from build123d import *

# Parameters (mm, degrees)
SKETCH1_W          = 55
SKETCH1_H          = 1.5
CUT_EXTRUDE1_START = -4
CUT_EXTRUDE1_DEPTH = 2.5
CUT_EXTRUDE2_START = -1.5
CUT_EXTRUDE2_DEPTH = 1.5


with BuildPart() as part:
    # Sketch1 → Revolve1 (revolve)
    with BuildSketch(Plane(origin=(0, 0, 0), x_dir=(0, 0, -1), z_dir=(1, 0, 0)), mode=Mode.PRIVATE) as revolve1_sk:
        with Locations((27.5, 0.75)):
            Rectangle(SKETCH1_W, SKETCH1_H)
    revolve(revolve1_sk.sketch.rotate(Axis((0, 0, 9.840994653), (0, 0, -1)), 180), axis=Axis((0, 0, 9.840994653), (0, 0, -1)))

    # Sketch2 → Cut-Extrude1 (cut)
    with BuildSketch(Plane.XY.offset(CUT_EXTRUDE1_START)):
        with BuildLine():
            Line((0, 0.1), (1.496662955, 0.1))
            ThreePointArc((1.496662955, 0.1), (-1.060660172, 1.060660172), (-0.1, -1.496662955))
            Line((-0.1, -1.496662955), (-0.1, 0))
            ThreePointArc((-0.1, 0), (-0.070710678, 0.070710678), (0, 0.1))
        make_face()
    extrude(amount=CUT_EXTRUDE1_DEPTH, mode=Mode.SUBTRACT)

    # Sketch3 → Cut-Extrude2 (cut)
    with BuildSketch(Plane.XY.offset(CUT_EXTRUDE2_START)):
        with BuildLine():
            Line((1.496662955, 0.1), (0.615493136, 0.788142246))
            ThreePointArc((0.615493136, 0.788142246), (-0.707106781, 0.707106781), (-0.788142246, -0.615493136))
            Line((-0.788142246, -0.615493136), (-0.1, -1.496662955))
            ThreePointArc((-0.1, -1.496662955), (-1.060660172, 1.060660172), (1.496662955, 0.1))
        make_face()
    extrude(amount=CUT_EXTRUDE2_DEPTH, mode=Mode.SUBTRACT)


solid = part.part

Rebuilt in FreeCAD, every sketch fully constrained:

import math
import FreeCAD as App
import Part
import Sketcher

V = App.Vector

doc = App.newDocument("Part")
body = doc.addObject("PartDesign::Body", "Body")

sketch1 = body.newObject("Sketcher::SketchObject", "Sketch")
sketch1.AttachmentSupport = (doc.getObject("YZ_Plane"), [""])
sketch1.MapMode = "FlatFace"
sketch1.addGeometry(Part.LineSegment(V(1.5, 0, 0), V(0, 0, 0)), False)
sketch1.addGeometry(Part.LineSegment(V(0, 0, 0), V(0, -55, 0)), False)
sketch1.addGeometry(Part.LineSegment(V(0, -55, 0), V(1.5, -55, 0)), False)
sketch1.addGeometry(Part.LineSegment(V(1.5, -55, 0), V(1.5, 0, 0)), False)
sketch1.addConstraint(Sketcher.Constraint("Coincident", 0, 2, 1, 1))
sketch1.addConstraint(Sketcher.Constraint("Coincident", 1, 2, 2, 1))
sketch1.addConstraint(Sketcher.Constraint("Coincident", 2, 2, 3, 1))
sketch1.addConstraint(Sketcher.Constraint("Coincident", 3, 2, 0, 1))
sketch1.addConstraint(Sketcher.Constraint("Horizontal", 0))
sketch1.addConstraint(Sketcher.Constraint("Vertical", 1))
sketch1.addConstraint(Sketcher.Constraint("Horizontal", 2))
sketch1.addConstraint(Sketcher.Constraint("Vertical", 3))
sketch1.addConstraint(Sketcher.Constraint("Coincident", 0, 2, -1, 1))
sketch1.addConstraint(Sketcher.Constraint("DistanceY", 1, 2, 1, 1, 55.0))
sketch1.addConstraint(Sketcher.Constraint("DistanceX", 0, 2, 0, 1, 1.5))
revolution = body.newObject("PartDesign::Revolution", "Revolution")
revolution.Profile = sketch1
revolution.ReferenceAxis = (sketch1, ["V_Axis"])
revolution.Angle = 360

sketch2 = body.newObject("Sketcher::SketchObject", "Sketch001")
sketch2.AttachmentSupport = (doc.getObject("XY_Plane"), [""])
sketch2.MapMode = "FlatFace"
sketch2.AttachmentOffset = App.Placement(V(0, 0, -4), App.Rotation())
sketch2.addGeometry(Part.LineSegment(V(0, 0.1, 0), V(1.496663, 0.1, 0)), False)
sketch2.addGeometry(Part.ArcOfCircle(Part.Circle(V(0, 0, 0), V(0, 0, 1), 1.5), math.radians(3.822554), math.radians(266.177446)), False)
sketch2.addGeometry(Part.LineSegment(V(-0.1, -1.496663, 0), V(-0.1, 0, 0)), False)
sketch2.addGeometry(Part.ArcOfCircle(Part.Circle(V(0, 0, 0), V(0, 0, 1), 0.1), math.radians(90), math.radians(180)), False)
sketch2.addConstraint(Sketcher.Constraint("Coincident", 0, 2, 1, 1))
sketch2.addConstraint(Sketcher.Constraint("Coincident", 1, 2, 2, 1))
sketch2.addConstraint(Sketcher.Constraint("Tangent", 2, 2, 3, 2))
sketch2.addConstraint(Sketcher.Constraint("Tangent", 3, 1, 0, 1))
sketch2.addConstraint(Sketcher.Constraint("Horizontal", 0))
sketch2.addConstraint(Sketcher.Constraint("Vertical", 2))
sketch2.addConstraint(Sketcher.Constraint("Coincident", 1, 3, -1, 1))
sketch2.addConstraint(Sketcher.Constraint("Coincident", 3, 3, -1, 1))
sketch2.addConstraint(Sketcher.Constraint("Radius", 1, 1.5))
sketch2.addConstraint(Sketcher.Constraint("Radius", 3, 0.1))
pocket1 = body.newObject("PartDesign::Pocket", "Pocket")
pocket1.Profile = sketch2
pocket1.Length = 2.5
pocket1.Reversed = True

sketch3 = body.newObject("Sketcher::SketchObject", "Sketch002")
sketch3.AttachmentSupport = (doc.getObject("XY_Plane"), [""])
sketch3.MapMode = "FlatFace"
sketch3.AttachmentOffset = App.Placement(V(0, 0, -1.5), App.Rotation())
sketch3.addGeometry(Part.LineSegment(V(0.615493, 0.788142, 0), V(1.496663, 0.1, 0)), False)
sketch3.addGeometry(Part.ArcOfCircle(Part.Circle(V(0, 0, 0), V(0, 0, 1), 1.5), math.radians(3.822554), math.radians(266.177446)), False)
sketch3.addGeometry(Part.LineSegment(V(-0.1, -1.496663, 0), V(-0.788142, -0.615493, 0)), False)
sketch3.addGeometry(Part.ArcOfCircle(Part.Circle(V(0, 0, 0), V(0, 0, 1), 1), math.radians(52.012239), math.radians(217.987761)), False)
sketch3.addConstraint(Sketcher.Constraint("Coincident", 0, 2, 1, 1))
sketch3.addConstraint(Sketcher.Constraint("Coincident", 1, 2, 2, 1))
sketch3.addConstraint(Sketcher.Constraint("Tangent", 2, 2, 3, 2))
sketch3.addConstraint(Sketcher.Constraint("Tangent", 3, 1, 0, 1))
sketch3.addConstraint(Sketcher.Constraint("Coincident", 1, 3, -1, 1))
sketch3.addConstraint(Sketcher.Constraint("Coincident", 3, 3, -1, 1))
sketch3.addConstraint(Sketcher.Constraint("Radius", 3, 1.0))
sketch3.addConstraint(Sketcher.Constraint("Radius", 1, 1.5))
sketch3.addConstraint(Sketcher.Constraint("DistanceY", -1, 1, 0, 2, 0.1))
sketch3.addConstraint(Sketcher.Constraint("DistanceX", 1, 2, -1, 1, 0.1))
pocket2 = body.newObject("PartDesign::Pocket", "Pocket001")
pocket2.Profile = sketch3
pocket2.Length = 1.5
pocket2.Reversed = True

doc.recompute()
